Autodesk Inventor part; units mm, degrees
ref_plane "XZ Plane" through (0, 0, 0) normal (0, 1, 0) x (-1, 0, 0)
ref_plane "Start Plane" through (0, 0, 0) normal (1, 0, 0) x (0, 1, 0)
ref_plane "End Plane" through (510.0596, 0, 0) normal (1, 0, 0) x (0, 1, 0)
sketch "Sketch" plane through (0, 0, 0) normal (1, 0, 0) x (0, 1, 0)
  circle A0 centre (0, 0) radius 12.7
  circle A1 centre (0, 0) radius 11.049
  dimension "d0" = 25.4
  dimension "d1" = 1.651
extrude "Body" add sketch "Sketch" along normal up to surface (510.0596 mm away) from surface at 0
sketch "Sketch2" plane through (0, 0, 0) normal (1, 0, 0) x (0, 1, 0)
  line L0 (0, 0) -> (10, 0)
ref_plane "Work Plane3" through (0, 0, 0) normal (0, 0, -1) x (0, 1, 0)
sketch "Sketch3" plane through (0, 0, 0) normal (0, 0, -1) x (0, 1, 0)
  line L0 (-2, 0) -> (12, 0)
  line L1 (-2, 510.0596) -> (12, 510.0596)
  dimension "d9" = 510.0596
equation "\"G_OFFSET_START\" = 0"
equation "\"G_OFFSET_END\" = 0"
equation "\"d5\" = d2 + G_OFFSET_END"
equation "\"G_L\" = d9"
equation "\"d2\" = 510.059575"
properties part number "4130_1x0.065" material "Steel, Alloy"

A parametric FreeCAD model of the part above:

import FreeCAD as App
import Part
import Sketcher
Q = App.Units.Quantity

doc = App.newDocument("Part")
body = doc.addObject("PartDesign::Body", "Body")

sketch1 = body.newObject("Sketcher::SketchObject", "Sketch")
sketch1.AttachmentSupport = (doc.getObject("YZ_Plane"), [""])
sketch1.MapMode = "FlatFace"
sketch1.addGeometry(Part.Circle(App.Vector(0, 0, 0), App.Vector(0, 0, 1), 12.7), False)
sketch1.addGeometry(Part.Circle(App.Vector(0, 0, 0), App.Vector(0, 0, 1), 11.049), False)
sketch1.addConstraint(Sketcher.Constraint("Coincident", 0, 3, -1, 1))
sketch1.addConstraint(Sketcher.Constraint("Coincident", 1, 3, -1, 1))
sketch1.addConstraint(Sketcher.Constraint("Diameter", 0, Q("1 in")))
sketch1.addConstraint(Sketcher.Constraint("Diameter", 1, Q("0.87 in")))
pad1 = body.newObject("PartDesign::Pad", "Pad")
pad1.Profile = sketch1
pad1.Length = 510.0596

doc.recompute()
